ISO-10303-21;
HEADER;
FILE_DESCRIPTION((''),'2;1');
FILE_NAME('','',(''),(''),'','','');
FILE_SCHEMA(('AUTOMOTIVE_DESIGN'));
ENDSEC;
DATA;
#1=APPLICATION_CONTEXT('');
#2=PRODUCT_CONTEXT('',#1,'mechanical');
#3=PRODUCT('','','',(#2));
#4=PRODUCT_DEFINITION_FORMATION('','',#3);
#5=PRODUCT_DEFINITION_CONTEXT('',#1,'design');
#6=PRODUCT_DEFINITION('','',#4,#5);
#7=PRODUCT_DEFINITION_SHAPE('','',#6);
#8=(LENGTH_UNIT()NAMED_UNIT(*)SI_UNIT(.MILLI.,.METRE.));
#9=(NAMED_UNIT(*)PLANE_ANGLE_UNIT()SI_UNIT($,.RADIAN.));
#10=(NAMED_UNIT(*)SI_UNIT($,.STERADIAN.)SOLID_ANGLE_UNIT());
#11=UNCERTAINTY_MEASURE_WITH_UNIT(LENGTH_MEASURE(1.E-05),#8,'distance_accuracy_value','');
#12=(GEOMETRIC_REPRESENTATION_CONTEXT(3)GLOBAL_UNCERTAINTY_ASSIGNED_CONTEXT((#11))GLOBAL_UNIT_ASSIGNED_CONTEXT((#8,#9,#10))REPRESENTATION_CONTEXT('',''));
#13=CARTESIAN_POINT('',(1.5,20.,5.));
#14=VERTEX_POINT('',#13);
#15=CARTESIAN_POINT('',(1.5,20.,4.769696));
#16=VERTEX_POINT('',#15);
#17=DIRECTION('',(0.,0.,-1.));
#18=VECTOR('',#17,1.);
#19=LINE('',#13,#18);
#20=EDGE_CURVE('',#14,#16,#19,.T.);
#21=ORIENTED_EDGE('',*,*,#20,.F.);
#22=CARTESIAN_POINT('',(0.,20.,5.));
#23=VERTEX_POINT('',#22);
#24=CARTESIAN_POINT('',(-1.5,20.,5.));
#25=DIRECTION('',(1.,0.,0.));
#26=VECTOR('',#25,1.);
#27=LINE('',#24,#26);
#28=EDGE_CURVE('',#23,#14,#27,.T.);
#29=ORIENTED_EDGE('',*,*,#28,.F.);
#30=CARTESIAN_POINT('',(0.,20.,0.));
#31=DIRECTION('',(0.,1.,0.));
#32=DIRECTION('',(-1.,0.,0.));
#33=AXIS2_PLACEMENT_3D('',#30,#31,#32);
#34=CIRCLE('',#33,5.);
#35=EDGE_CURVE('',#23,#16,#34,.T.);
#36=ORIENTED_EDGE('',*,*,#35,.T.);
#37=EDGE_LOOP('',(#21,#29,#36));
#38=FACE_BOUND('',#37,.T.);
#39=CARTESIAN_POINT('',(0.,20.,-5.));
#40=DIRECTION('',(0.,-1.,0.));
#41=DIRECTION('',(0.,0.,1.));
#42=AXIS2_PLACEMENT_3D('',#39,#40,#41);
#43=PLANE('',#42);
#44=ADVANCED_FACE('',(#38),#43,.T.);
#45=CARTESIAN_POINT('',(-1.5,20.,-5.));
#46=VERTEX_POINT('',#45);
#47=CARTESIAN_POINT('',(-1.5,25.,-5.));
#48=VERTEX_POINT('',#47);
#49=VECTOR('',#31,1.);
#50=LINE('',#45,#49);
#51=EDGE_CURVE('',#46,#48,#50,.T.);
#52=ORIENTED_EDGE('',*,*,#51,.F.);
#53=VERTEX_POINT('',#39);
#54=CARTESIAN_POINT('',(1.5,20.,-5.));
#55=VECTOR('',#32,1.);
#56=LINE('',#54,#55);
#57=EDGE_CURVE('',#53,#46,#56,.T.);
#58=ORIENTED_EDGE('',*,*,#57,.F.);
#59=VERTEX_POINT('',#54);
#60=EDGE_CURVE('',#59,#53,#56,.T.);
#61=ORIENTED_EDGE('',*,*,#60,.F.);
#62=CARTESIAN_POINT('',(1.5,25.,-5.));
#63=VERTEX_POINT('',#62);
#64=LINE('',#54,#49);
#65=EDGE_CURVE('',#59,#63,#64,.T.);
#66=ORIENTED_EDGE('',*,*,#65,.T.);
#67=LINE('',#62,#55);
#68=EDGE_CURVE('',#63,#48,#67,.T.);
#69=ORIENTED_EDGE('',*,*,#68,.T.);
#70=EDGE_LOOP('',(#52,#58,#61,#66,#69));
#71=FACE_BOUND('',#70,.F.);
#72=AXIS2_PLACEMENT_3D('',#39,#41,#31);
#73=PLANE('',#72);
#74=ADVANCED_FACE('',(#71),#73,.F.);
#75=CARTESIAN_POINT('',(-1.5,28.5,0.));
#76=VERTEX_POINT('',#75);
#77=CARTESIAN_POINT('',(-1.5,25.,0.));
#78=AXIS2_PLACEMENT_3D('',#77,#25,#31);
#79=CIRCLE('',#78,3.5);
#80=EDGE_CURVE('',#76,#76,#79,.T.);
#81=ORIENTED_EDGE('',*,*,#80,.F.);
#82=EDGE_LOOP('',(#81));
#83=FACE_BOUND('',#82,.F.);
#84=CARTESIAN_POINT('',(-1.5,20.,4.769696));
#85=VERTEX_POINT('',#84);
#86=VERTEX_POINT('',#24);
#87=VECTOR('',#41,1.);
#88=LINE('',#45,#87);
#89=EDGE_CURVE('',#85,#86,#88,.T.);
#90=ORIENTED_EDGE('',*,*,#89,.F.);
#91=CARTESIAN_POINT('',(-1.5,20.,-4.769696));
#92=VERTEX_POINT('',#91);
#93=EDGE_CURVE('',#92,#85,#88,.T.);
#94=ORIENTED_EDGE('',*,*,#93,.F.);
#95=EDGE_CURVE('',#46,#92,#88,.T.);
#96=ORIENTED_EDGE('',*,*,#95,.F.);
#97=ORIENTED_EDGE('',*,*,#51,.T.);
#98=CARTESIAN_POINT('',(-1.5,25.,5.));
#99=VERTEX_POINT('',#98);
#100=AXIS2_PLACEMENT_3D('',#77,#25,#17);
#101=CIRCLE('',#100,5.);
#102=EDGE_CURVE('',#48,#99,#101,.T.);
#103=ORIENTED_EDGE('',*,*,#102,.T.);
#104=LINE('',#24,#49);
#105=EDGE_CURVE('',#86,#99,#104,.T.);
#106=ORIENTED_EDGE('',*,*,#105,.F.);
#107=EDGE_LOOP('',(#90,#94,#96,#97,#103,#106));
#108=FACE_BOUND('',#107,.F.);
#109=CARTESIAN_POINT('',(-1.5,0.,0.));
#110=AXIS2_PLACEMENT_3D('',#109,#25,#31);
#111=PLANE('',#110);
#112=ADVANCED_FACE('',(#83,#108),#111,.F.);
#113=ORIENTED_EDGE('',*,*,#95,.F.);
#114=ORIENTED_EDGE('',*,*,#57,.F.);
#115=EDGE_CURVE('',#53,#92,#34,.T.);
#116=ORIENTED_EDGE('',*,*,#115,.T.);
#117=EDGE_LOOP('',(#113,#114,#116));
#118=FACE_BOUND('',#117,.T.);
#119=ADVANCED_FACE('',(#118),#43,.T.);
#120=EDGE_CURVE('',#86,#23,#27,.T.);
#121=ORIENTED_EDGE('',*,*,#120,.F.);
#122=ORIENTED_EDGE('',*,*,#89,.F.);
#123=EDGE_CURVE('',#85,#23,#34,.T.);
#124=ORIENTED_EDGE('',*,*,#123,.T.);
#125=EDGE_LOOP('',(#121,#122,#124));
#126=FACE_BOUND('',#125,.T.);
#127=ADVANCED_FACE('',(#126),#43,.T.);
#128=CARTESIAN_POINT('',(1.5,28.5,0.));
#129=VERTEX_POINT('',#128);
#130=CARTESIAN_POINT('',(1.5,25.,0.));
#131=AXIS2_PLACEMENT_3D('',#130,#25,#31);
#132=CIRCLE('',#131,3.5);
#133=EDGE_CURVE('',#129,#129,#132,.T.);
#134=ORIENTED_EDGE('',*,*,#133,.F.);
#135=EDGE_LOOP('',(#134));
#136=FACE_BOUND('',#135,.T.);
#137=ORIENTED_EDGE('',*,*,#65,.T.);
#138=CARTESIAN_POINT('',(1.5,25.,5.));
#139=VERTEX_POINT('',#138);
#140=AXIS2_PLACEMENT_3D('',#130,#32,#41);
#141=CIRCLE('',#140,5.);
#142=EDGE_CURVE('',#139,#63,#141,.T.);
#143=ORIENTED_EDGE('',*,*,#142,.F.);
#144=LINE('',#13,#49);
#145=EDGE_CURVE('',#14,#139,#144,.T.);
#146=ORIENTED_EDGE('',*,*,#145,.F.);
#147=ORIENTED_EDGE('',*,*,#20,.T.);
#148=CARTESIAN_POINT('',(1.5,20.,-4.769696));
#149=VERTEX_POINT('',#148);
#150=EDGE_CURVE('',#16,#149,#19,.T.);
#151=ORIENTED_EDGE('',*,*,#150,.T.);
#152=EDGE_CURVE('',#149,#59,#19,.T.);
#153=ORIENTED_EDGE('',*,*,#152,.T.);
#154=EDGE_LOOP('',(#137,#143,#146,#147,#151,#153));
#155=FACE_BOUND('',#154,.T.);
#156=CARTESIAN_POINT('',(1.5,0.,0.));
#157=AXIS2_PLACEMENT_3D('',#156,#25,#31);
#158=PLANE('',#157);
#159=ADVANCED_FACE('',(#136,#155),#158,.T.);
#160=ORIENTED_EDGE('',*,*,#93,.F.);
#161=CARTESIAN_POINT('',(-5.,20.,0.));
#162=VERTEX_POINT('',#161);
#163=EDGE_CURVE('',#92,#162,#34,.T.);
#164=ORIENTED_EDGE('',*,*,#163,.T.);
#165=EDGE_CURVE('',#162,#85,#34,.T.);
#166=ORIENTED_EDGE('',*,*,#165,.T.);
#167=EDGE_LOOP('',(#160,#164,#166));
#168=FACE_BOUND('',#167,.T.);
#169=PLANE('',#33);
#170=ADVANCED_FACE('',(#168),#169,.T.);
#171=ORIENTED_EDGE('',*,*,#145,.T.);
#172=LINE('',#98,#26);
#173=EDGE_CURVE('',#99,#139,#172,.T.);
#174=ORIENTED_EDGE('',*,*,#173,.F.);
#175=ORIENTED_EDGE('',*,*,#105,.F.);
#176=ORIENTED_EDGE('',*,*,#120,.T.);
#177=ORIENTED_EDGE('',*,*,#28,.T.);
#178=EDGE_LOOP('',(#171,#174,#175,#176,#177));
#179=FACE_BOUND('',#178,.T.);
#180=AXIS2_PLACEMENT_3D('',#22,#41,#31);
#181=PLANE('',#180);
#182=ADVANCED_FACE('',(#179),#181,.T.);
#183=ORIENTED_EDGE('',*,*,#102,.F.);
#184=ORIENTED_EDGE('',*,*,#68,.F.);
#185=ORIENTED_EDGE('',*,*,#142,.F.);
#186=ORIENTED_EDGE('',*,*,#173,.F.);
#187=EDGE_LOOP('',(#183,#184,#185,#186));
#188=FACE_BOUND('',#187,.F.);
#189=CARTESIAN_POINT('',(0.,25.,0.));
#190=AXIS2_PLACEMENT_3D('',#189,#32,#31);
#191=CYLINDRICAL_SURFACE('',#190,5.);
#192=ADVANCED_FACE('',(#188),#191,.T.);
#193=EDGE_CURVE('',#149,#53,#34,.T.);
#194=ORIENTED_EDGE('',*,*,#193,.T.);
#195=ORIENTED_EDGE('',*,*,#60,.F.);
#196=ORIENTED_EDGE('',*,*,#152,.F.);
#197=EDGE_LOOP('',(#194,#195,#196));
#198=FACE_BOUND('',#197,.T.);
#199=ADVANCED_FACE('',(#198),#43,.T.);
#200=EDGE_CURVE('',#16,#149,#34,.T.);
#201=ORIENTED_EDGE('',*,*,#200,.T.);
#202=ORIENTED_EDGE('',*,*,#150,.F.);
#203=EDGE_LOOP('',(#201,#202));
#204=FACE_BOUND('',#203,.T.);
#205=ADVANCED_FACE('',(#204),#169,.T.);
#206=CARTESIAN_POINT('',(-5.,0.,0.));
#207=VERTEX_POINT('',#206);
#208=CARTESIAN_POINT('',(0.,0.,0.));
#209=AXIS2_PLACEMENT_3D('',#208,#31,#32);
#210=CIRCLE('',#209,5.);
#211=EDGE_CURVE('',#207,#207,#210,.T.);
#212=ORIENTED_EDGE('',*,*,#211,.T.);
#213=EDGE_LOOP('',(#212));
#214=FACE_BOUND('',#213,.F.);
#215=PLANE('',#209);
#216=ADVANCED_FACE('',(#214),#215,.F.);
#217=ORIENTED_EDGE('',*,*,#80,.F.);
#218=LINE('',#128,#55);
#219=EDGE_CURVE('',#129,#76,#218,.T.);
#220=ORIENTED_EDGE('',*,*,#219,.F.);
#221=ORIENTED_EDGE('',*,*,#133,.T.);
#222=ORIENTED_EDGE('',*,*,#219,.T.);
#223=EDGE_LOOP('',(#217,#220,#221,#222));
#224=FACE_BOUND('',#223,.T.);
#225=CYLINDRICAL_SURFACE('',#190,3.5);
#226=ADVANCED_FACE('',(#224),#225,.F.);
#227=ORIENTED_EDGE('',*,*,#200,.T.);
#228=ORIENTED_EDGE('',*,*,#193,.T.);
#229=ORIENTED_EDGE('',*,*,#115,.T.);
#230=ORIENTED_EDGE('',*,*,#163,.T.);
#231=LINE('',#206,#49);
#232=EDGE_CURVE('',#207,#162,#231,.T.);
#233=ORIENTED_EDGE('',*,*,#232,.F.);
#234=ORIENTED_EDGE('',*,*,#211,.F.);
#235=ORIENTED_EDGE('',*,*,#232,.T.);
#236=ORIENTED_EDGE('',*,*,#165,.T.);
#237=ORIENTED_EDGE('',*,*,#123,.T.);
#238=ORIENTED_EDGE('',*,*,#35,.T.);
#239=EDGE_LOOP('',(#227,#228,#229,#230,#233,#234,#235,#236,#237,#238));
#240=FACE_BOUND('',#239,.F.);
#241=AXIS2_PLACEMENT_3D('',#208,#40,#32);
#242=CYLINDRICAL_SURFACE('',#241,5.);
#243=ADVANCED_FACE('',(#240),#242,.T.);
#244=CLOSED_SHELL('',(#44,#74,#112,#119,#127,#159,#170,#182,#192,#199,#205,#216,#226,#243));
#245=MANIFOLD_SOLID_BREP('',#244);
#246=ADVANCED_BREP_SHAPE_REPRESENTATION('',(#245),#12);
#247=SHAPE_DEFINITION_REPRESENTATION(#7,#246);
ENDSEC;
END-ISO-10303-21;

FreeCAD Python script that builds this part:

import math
import FreeCAD as App
import Part
import Sketcher

doc = App.newDocument("Part")
body = doc.addObject("PartDesign::Body", "Body")

sketch1 = body.newObject("Sketcher::SketchObject", "Sketch")
sketch1.AttachmentSupport = (doc.getObject("XZ_Plane"), [""])
sketch1.MapMode = "FlatFace"
sketch1.addGeometry(Part.Circle(App.Vector(0, 0, 0), App.Vector(0, 0, 1), 5), False)
sketch1.addConstraint([
    Sketcher.Constraint("Coincident", 0, 3, -1, 1),
    Sketcher.Constraint("Diameter", 0, 10.0),
])
pad1 = body.newObject("PartDesign::Pad", "Pad")
pad1.Profile = sketch1
pad1.Length = 20
pad1.Reversed = True

sketch2 = body.newObject("Sketcher::SketchObject", "Sketch001")
sketch2.AttachmentSupport = (doc.getObject("YZ_Plane"), [""])
sketch2.MapMode = "FlatFace"
sketch2.addGeometry([
    Part.ArcOfCircle(Part.Circle(App.Vector(25, 0, 0), App.Vector(0, 0, 1), 5), math.radians(-90), math.radians(90)),
    Part.LineSegment(App.Vector(25, 5, 0), App.Vector(20, 5, 0)),
    Part.LineSegment(App.Vector(20, 5, 0), App.Vector(20, -5, 0)),
    Part.LineSegment(App.Vector(20, -5, 0), App.Vector(25, -5, 0)),
    Part.Circle(App.Vector(25, 0, 0), App.Vector(0, 0, 1), 3.5),
], False)
sketch2.addConstraint([
    Sketcher.Constraint("Tangent", 0, 2, 1, 1),
    Sketcher.Constraint("Coincident", 1, 2, 2, 1),
    Sketcher.Constraint("Coincident", 2, 2, 3, 1),
    Sketcher.Constraint("Tangent", 3, 2, 0, 1),
    Sketcher.Constraint("Horizontal", 1),
    Sketcher.Constraint("Vertical", 2),
    Sketcher.Constraint("Horizontal", 3),
    Sketcher.Constraint("Coincident", 4, 3, 0, 3),
    Sketcher.Constraint("PointOnObject", 0, 3, -1),
    Sketcher.Constraint("Diameter", 4, 7.0),
    Sketcher.Constraint("Radius", 0, 5.0),
    Sketcher.Constraint("DistanceX", 1, 2, 1, 1, 5.0),
    Sketcher.Constraint("DistanceX", -1, 1, 0, 3, 25.0),
])
pad2 = body.newObject("PartDesign::Pad", "Pad001")
pad2.Profile = sketch2
pad2.Length = 3
pad2.Midplane = True

doc.recompute()
